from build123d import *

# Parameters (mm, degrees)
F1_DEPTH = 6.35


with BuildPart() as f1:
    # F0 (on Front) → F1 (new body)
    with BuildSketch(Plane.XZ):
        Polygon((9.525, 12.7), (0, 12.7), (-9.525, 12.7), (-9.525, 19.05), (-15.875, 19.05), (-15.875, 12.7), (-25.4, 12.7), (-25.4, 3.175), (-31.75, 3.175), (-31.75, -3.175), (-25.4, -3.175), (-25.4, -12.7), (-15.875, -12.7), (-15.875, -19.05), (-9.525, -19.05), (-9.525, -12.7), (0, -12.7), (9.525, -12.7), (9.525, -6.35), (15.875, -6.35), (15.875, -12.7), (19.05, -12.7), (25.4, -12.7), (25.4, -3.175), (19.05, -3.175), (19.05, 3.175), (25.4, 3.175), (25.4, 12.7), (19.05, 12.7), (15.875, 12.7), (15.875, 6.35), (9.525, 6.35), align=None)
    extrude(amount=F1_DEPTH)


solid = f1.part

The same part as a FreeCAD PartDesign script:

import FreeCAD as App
import Part
import Sketcher
from FreeCAD import Vector
Q = App.Units.Quantity

doc = App.newDocument("Part")
body = doc.addObject("PartDesign::Body", "Body")

# Sketch on XZ plane
sketch1 = doc.addObject("Sketcher::SketchObject", "Sketch")
body.addObject(sketch1)
sketch1.AttachmentSupport = (doc.XZ_Plane, [""])
sketch1.MapMode = "FlatFace"
sketch1.addGeometry([
    Part.LineSegment(Vector(10, 13, 0), Vector(-10, 13, 0)),  # 0
    Part.LineSegment(Vector(-10, 13, 0), Vector(-10, 19, 0)),  # 1
    Part.LineSegment(Vector(-10, 19, 0), Vector(-16, 19, 0)),  # 2
    Part.LineSegment(Vector(-16, 19, 0), Vector(-16, 13, 0)),  # 3
    Part.LineSegment(Vector(-16, 13, 0), Vector(-25, 13, 0)),  # 4
    Part.LineSegment(Vector(-25, 13, 0), Vector(-25, 3, 0)),  # 5
    Part.LineSegment(Vector(-25, 3, 0), Vector(-32, 3, 0)),  # 6
    Part.LineSegment(Vector(-32, 3, 0), Vector(-32, -3, 0)),  # 7
    Part.LineSegment(Vector(-32, -3, 0), Vector(-25, -3, 0)),  # 8
    Part.LineSegment(Vector(-25, -3, 0), Vector(-25, -13, 0)),  # 9
    Part.LineSegment(Vector(-25, -13, 0), Vector(-16, -13, 0)),  # 10
    Part.LineSegment(Vector(-16, -13, 0), Vector(-16, -19, 0)),  # 11
    Part.LineSegment(Vector(-16, -19, 0), Vector(-10, -19, 0)),  # 12
    Part.LineSegment(Vector(-10, -19, 0), Vector(-10, -13, 0)),  # 13
    Part.LineSegment(Vector(-10, -13, 0), Vector(10, -13, 0)),  # 14
    Part.LineSegment(Vector(10, -13, 0), Vector(10, -6, 0)),  # 15
    Part.LineSegment(Vector(10, -6, 0), Vector(16, -6, 0)),  # 16
    Part.LineSegment(Vector(16, -6, 0), Vector(16, -13, 0)),  # 17
    Part.LineSegment(Vector(16, -13, 0), Vector(25, -13, 0)),  # 18
    Part.LineSegment(Vector(25, -13, 0), Vector(25, -3, 0)),  # 19
    Part.LineSegment(Vector(25, -3, 0), Vector(19, -3, 0)),  # 20
    Part.LineSegment(Vector(19, -3, 0), Vector(19, 3, 0)),  # 21
    Part.LineSegment(Vector(19, 3, 0), Vector(25, 3, 0)),  # 22
    Part.LineSegment(Vector(25, 3, 0), Vector(25, 13, 0)),  # 23
    Part.LineSegment(Vector(25, 13, 0), Vector(16, 13, 0)),  # 24
    Part.LineSegment(Vector(16, 13, 0), Vector(16, 6, 0)),  # 25
    Part.LineSegment(Vector(16, 6, 0), Vector(10, 6, 0)),  # 26
    Part.LineSegment(Vector(10, 6, 0), Vector(10, 13, 0)),  # 27
], False)
sketch1.addConstraint([
    Sketcher.Constraint("Coincident", 0, 2, 1, 1),
    Sketcher.Constraint("Coincident", 1, 2, 2, 1),
    Sketcher.Constraint("Coincident", 2, 2, 3, 1),
    Sketcher.Constraint("Coincident", 3, 2, 4, 1),
    Sketcher.Constraint("Coincident", 4, 2, 5, 1),
    Sketcher.Constraint("Coincident", 5, 2, 6, 1),
    Sketcher.Constraint("Coincident", 6, 2, 7, 1),
    Sketcher.Constraint("Coincident", 7, 2, 8, 1),
    Sketcher.Constraint("Coincident", 8, 2, 9, 1),
    Sketcher.Constraint("Coincident", 9, 2, 10, 1),
    Sketcher.Constraint("Coincident", 10, 2, 11, 1),
    Sketcher.Constraint("Coincident", 11, 2, 12, 1),
    Sketcher.Constraint("Coincident", 12, 2, 13, 1),
    Sketcher.Constraint("Coincident", 13, 2, 14, 1),
    Sketcher.Constraint("Coincident", 14, 2, 15, 1),
    Sketcher.Constraint("Coincident", 15, 2, 16, 1),
    Sketcher.Constraint("Coincident", 16, 2, 17, 1),
    Sketcher.Constraint("Coincident", 17, 2, 18, 1),
    Sketcher.Constraint("Coincident", 18, 2, 19, 1),
    Sketcher.Constraint("Coincident", 19, 2, 20, 1),
    Sketcher.Constraint("Coincident", 20, 2, 21, 1),
    Sketcher.Constraint("Coincident", 21, 2, 22, 1),
    Sketcher.Constraint("Coincident", 22, 2, 23, 1),
    Sketcher.Constraint("Coincident", 23, 2, 24, 1),
    Sketcher.Constraint("Coincident", 24, 2, 25, 1),
    Sketcher.Constraint("Coincident", 25, 2, 26, 1),
    Sketcher.Constraint("Coincident", 26, 2, 27, 1),
    Sketcher.Constraint("Coincident", 27, 2, 0, 1),
    Sketcher.Constraint("Horizontal", 0),
    Sketcher.Constraint("Vertical", 1),
    Sketcher.Constraint("Horizontal", 2),
    Sketcher.Constraint("Vertical", 3),
    Sketcher.Constraint("Horizontal", 4),
    Sketcher.Constraint("Vertical", 5),
    Sketcher.Constraint("Horizontal", 6),
    Sketcher.Constraint("Vertical", 7),
    Sketcher.Constraint("Horizontal", 8),
    Sketcher.Constraint("Vertical", 9),
    Sketcher.Constraint("Horizontal", 10),
    Sketcher.Constraint("Vertical", 11),
    Sketcher.Constraint("Horizontal", 12),
    Sketcher.Constraint("Vertical", 13),
    Sketcher.Constraint("Horizontal", 14),
    Sketcher.Constraint("Vertical", 15),
    Sketcher.Constraint("Horizontal", 16),
    Sketcher.Constraint("Vertical", 17),
    Sketcher.Constraint("Horizontal", 18),
    Sketcher.Constraint("Vertical", 19),
    Sketcher.Constraint("Horizontal", 20),
    Sketcher.Constraint("Vertical", 21),
    Sketcher.Constraint("Horizontal", 22),
    Sketcher.Constraint("Vertical", 23),
    Sketcher.Constraint("Horizontal", 24),
    Sketcher.Constraint("Vertical", 25),
    Sketcher.Constraint("Horizontal", 26),
    Sketcher.Constraint("Vertical", 27),
    Sketcher.Constraint("Symmetric", 0, 2, 14, 2, -1, 1),
    Sketcher.Constraint("Symmetric", 3, 2, 17, 2, -1, 1),
    Sketcher.Constraint("Symmetric", 5, 2, 19, 2, -1, 1),
    Sketcher.Constraint("Symmetric", 8, 2, 22, 2, -1, 1),
    Sketcher.Constraint("Symmetric", 10, 2, 24, 2, -1, 1),
    Sketcher.Constraint("Symmetric", 10, 2, 17, 2, -2),
    Sketcher.Constraint("Symmetric", 8, 2, 19, 2, -2),
    Sketcher.Constraint("Symmetric", 1, 2, 12, 2, -1),
    Sketcher.Constraint("Symmetric", 15, 2, 26, 2, -1),
    Sketcher.Constraint("Horizontal", 0, 2, 3, 2),
    Sketcher.Constraint("Equal", 2, 6),
    Sketcher.Constraint("Equal", 16, 20),
    Sketcher.Constraint("Equal", 26, 1),
    Sketcher.Constraint("Equal", 24, 5),
    Sketcher.Constraint("Equal", 3, 7),
    Sketcher.Constraint("Equal", 13, 15),
    Sketcher.Constraint("DistanceX", 4, 2, -1, 1, Q("1 in")),
    Sketcher.Constraint("DistanceY", 9, 2, 4, 2, Q("1 in")),
    Sketcher.Constraint("DistanceX", 0, 2, 0, 1, Q("0.75 in")),
])
pad1 = doc.addObject("PartDesign::Pad", "Pad")
body.addObject(pad1)
pad1.Profile = sketch1
pad1.Length = Q("0.25 in")

doc.recompute()
